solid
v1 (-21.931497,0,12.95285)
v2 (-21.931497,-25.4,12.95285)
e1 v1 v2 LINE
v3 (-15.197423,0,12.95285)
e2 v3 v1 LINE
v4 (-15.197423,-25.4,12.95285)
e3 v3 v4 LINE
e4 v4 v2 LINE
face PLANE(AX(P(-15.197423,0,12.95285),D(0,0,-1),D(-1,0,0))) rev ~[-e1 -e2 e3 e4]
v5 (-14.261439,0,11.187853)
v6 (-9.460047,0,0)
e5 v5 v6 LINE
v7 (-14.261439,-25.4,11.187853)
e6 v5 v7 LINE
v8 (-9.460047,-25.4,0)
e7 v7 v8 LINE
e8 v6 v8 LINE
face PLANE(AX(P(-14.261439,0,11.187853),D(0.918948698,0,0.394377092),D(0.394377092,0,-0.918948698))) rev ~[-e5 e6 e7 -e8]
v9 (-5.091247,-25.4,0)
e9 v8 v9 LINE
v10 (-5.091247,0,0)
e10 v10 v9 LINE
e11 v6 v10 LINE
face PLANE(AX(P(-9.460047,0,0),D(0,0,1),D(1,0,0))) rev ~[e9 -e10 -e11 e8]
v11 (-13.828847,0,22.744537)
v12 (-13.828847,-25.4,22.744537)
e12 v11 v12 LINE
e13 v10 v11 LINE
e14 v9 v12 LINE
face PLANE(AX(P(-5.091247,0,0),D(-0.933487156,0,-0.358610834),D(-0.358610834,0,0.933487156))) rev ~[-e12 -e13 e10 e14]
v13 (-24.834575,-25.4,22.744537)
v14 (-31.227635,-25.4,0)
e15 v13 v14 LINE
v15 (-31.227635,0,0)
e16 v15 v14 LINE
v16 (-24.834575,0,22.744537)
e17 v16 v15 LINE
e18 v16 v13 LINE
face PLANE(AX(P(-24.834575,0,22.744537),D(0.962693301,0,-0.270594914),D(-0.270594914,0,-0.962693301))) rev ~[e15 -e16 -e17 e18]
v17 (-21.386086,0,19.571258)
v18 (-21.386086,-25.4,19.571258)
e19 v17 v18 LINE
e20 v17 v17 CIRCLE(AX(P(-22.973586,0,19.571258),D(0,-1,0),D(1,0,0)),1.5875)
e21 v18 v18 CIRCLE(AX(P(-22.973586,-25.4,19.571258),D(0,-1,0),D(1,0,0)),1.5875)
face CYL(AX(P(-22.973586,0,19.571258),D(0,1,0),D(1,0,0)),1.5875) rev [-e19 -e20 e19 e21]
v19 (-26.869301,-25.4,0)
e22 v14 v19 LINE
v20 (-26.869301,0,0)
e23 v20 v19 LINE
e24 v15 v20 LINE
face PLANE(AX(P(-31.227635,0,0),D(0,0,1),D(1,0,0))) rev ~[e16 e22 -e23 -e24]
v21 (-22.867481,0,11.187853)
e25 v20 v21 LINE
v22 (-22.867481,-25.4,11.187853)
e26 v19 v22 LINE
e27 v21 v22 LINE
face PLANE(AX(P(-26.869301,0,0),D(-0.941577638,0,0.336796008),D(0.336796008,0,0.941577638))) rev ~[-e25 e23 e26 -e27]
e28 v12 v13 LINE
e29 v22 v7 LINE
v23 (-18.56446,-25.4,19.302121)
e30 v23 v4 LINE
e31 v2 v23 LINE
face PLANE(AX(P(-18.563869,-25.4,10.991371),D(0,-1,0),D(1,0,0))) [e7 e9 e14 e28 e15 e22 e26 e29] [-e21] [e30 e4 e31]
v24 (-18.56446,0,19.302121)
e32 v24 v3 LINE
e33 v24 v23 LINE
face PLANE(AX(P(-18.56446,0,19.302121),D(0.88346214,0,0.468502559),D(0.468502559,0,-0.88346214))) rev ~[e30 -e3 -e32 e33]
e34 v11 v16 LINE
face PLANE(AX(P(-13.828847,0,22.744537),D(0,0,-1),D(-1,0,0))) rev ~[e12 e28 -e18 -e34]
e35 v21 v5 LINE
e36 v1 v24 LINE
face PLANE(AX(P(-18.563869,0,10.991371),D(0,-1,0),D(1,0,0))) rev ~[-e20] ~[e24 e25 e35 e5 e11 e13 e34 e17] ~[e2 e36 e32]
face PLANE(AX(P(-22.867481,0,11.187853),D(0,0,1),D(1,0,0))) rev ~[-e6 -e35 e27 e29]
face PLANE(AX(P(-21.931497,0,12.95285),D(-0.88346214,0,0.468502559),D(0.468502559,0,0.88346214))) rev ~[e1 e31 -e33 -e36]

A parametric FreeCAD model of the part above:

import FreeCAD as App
import Part
import Sketcher

V = App.Vector
Q = App.Units.Quantity


def add_polygon(sketch, points):
    """Adds a closed chain of lines whose ends are joined by coincident constraints."""
    first, n = sketch.GeometryCount, len(points)
    for a, b in zip(points, points[1:] + points[:1]):
        sketch.addGeometry(Part.LineSegment(App.Vector(*a, 0), App.Vector(*b, 0)), False)
    for i in range(n):
        sketch.addConstraint(Sketcher.Constraint("Coincident", first + i, 2, first + (i + 1) % n, 1))

doc = App.newDocument("Part")
body = doc.addObject("PartDesign::Body", "Body")

# Sketch on XZ plane
sketch1 = body.newObject("Sketcher::SketchObject", "Sketch")
sketch1.AttachmentSupport = (doc.getObject("XZ_Plane"), [""])
sketch1.MapMode = "FlatFace"
add_polygon(sketch1, [(-5.091247, 0), (-13.828847, 22.744537), (-24.834575, 22.744537), (-31.227635, 0), (-26.869301, 0), (-22.867481, 11.187853), (-14.261439, 11.187853), (-9.460047, 0)])  # lines 0-7
add_polygon(sketch1, [(-18.56446, 19.302121), (-15.197423, 12.95285), (-21.931497, 12.95285)])  # lines 8-10
sketch1.addGeometry(Part.Circle(V(-22.973586, 19.571258, 0), V(0, 0, 1), 1.5875), False)  # 11
sketch1.addConstraint(Sketcher.Constraint("Horizontal", 1))
sketch1.addConstraint(Sketcher.Constraint("Horizontal", 3))
sketch1.addConstraint(Sketcher.Constraint("Horizontal", 5))
sketch1.addConstraint(Sketcher.Constraint("Horizontal", 7))
sketch1.addConstraint(Sketcher.Constraint("Horizontal", 9))
sketch1.addConstraint(Sketcher.Constraint("PointOnObject", 2, 2, -1))
sketch1.addConstraint(Sketcher.Constraint("PointOnObject", 6, 2, -1))
sketch1.addConstraint(Sketcher.Constraint("Equal", 8, 10))
sketch1.addConstraint(Sketcher.Constraint("Diameter", 11, Q("0.125 in")))
sketch1.addConstraint(Sketcher.Constraint("DistanceX", 7, 1, 7, 2, Q("0.172 in")))
sketch1.addConstraint(Sketcher.Constraint("DistanceX", 0, 2, 6, 2, Q("0.172 in")))
sketch1.addConstraint(Sketcher.Constraint("DistanceX", 1, 2, 1, 1, 11.005728))
sketch1.addConstraint(Sketcher.Constraint("DistanceX", 3, 2, -1, 1, 26.869301))
sketch1.addConstraint(Sketcher.Constraint("Distance", 0, 24.365131))
sketch1.addConstraint(Sketcher.Constraint("Distance", 4, 11.882029))
sketch1.addConstraint(Sketcher.Constraint("Distance", 6, 12.174622))
sketch1.addConstraint(Sketcher.Constraint("DistanceX", 3, 1, 3, 2, 4.358334))
sketch1.addConstraint(Sketcher.Constraint("DistanceX", 5, 1, 5, 2, 8.606042))
sketch1.addConstraint(Sketcher.Constraint("DistanceX", 9, 2, 9, 1, 6.734074))
sketch1.addConstraint(Sketcher.Constraint("DistanceY", -1, 1, 11, 3, 19.571258))
sketch1.addConstraint(Sketcher.Constraint("DistanceX", 4, 2, -1, 1, 22.867481))
sketch1.addConstraint(Sketcher.Constraint("DistanceY", -1, 1, 8, 2, 12.95285))
sketch1.addConstraint(Sketcher.Constraint("DistanceX", 10, 2, -1, 1, 18.56446))
sketch1.addConstraint(Sketcher.Constraint("DistanceY", -1, 1, 10, 2, 19.302121))
sketch1.addConstraint(Sketcher.Constraint("DistanceX", 11, 3, 0, 2, 9.144739))
pad1 = body.newObject("PartDesign::Pad", "Pad")
pad1.Profile = sketch1
pad1.Length = Q("1 in")

# Sketch on XZ plane
sketch2 = body.newObject("Sketcher::SketchObject", "Sketch001")
sketch2.AttachmentSupport = (doc.getObject("XZ_Plane"), [""])
sketch2.MapMode = "FlatFace"
add_polygon(sketch2, [(-5.091247, 0), (-13.828847, 22.744537), (-24.834575, 22.744537), (-31.227635, 0), (-26.869301, 0), (-22.867481, 11.187853), (-14.261439, 11.187853), (-9.460047, 0)])  # lines 0-7
sketch2.addGeometry(Part.Circle(V(-22.973586, 19.571258, 0), V(0, 0, 1), 1.5875), False)  # 8
sketch2.addConstraint(Sketcher.Constraint("Horizontal", 1))
sketch2.addConstraint(Sketcher.Constraint("Horizontal", 3))
sketch2.addConstraint(Sketcher.Constraint("Horizontal", 5))
sketch2.addConstraint(Sketcher.Constraint("Horizontal", 7))
sketch2.addConstraint(Sketcher.Constraint("PointOnObject", 2, 2, -1))
sketch2.addConstraint(Sketcher.Constraint("PointOnObject", 6, 2, -1))
sketch2.addConstraint(Sketcher.Constraint("Diameter", 8, Q("0.125 in")))
sketch2.addConstraint(Sketcher.Constraint("DistanceX", 7, 1, 7, 2, Q("0.172 in")))
sketch2.addConstraint(Sketcher.Constraint("DistanceX", 0, 2, 6, 2, Q("0.172 in")))
sketch2.addConstraint(Sketcher.Constraint("DistanceX", 1, 2, 1, 1, 11.005728))
sketch2.addConstraint(Sketcher.Constraint("DistanceX", 3, 2, -1, 1, 26.869301))
sketch2.addConstraint(Sketcher.Constraint("Distance", 0, 24.365131))
sketch2.addConstraint(Sketcher.Constraint("Distance", 4, 11.882029))
sketch2.addConstraint(Sketcher.Constraint("Distance", 6, 12.174622))
sketch2.addConstraint(Sketcher.Constraint("DistanceX", 3, 1, 3, 2, 4.358334))
sketch2.addConstraint(Sketcher.Constraint("DistanceX", 5, 1, 5, 2, 8.606042))
sketch2.addConstraint(Sketcher.Constraint("DistanceY", -1, 1, 8, 3, 19.571258))
sketch2.addConstraint(Sketcher.Constraint("DistanceX", 4, 2, -1, 1, 22.867481))
sketch2.addConstraint(Sketcher.Constraint("DistanceX", 8, 3, 0, 2, 9.144739))
pocket1 = body.newObject("PartDesign::Pocket", "Pocket")
pocket1.Profile = sketch2
pocket1.Length = Q("1 in")

doc.recompute()
